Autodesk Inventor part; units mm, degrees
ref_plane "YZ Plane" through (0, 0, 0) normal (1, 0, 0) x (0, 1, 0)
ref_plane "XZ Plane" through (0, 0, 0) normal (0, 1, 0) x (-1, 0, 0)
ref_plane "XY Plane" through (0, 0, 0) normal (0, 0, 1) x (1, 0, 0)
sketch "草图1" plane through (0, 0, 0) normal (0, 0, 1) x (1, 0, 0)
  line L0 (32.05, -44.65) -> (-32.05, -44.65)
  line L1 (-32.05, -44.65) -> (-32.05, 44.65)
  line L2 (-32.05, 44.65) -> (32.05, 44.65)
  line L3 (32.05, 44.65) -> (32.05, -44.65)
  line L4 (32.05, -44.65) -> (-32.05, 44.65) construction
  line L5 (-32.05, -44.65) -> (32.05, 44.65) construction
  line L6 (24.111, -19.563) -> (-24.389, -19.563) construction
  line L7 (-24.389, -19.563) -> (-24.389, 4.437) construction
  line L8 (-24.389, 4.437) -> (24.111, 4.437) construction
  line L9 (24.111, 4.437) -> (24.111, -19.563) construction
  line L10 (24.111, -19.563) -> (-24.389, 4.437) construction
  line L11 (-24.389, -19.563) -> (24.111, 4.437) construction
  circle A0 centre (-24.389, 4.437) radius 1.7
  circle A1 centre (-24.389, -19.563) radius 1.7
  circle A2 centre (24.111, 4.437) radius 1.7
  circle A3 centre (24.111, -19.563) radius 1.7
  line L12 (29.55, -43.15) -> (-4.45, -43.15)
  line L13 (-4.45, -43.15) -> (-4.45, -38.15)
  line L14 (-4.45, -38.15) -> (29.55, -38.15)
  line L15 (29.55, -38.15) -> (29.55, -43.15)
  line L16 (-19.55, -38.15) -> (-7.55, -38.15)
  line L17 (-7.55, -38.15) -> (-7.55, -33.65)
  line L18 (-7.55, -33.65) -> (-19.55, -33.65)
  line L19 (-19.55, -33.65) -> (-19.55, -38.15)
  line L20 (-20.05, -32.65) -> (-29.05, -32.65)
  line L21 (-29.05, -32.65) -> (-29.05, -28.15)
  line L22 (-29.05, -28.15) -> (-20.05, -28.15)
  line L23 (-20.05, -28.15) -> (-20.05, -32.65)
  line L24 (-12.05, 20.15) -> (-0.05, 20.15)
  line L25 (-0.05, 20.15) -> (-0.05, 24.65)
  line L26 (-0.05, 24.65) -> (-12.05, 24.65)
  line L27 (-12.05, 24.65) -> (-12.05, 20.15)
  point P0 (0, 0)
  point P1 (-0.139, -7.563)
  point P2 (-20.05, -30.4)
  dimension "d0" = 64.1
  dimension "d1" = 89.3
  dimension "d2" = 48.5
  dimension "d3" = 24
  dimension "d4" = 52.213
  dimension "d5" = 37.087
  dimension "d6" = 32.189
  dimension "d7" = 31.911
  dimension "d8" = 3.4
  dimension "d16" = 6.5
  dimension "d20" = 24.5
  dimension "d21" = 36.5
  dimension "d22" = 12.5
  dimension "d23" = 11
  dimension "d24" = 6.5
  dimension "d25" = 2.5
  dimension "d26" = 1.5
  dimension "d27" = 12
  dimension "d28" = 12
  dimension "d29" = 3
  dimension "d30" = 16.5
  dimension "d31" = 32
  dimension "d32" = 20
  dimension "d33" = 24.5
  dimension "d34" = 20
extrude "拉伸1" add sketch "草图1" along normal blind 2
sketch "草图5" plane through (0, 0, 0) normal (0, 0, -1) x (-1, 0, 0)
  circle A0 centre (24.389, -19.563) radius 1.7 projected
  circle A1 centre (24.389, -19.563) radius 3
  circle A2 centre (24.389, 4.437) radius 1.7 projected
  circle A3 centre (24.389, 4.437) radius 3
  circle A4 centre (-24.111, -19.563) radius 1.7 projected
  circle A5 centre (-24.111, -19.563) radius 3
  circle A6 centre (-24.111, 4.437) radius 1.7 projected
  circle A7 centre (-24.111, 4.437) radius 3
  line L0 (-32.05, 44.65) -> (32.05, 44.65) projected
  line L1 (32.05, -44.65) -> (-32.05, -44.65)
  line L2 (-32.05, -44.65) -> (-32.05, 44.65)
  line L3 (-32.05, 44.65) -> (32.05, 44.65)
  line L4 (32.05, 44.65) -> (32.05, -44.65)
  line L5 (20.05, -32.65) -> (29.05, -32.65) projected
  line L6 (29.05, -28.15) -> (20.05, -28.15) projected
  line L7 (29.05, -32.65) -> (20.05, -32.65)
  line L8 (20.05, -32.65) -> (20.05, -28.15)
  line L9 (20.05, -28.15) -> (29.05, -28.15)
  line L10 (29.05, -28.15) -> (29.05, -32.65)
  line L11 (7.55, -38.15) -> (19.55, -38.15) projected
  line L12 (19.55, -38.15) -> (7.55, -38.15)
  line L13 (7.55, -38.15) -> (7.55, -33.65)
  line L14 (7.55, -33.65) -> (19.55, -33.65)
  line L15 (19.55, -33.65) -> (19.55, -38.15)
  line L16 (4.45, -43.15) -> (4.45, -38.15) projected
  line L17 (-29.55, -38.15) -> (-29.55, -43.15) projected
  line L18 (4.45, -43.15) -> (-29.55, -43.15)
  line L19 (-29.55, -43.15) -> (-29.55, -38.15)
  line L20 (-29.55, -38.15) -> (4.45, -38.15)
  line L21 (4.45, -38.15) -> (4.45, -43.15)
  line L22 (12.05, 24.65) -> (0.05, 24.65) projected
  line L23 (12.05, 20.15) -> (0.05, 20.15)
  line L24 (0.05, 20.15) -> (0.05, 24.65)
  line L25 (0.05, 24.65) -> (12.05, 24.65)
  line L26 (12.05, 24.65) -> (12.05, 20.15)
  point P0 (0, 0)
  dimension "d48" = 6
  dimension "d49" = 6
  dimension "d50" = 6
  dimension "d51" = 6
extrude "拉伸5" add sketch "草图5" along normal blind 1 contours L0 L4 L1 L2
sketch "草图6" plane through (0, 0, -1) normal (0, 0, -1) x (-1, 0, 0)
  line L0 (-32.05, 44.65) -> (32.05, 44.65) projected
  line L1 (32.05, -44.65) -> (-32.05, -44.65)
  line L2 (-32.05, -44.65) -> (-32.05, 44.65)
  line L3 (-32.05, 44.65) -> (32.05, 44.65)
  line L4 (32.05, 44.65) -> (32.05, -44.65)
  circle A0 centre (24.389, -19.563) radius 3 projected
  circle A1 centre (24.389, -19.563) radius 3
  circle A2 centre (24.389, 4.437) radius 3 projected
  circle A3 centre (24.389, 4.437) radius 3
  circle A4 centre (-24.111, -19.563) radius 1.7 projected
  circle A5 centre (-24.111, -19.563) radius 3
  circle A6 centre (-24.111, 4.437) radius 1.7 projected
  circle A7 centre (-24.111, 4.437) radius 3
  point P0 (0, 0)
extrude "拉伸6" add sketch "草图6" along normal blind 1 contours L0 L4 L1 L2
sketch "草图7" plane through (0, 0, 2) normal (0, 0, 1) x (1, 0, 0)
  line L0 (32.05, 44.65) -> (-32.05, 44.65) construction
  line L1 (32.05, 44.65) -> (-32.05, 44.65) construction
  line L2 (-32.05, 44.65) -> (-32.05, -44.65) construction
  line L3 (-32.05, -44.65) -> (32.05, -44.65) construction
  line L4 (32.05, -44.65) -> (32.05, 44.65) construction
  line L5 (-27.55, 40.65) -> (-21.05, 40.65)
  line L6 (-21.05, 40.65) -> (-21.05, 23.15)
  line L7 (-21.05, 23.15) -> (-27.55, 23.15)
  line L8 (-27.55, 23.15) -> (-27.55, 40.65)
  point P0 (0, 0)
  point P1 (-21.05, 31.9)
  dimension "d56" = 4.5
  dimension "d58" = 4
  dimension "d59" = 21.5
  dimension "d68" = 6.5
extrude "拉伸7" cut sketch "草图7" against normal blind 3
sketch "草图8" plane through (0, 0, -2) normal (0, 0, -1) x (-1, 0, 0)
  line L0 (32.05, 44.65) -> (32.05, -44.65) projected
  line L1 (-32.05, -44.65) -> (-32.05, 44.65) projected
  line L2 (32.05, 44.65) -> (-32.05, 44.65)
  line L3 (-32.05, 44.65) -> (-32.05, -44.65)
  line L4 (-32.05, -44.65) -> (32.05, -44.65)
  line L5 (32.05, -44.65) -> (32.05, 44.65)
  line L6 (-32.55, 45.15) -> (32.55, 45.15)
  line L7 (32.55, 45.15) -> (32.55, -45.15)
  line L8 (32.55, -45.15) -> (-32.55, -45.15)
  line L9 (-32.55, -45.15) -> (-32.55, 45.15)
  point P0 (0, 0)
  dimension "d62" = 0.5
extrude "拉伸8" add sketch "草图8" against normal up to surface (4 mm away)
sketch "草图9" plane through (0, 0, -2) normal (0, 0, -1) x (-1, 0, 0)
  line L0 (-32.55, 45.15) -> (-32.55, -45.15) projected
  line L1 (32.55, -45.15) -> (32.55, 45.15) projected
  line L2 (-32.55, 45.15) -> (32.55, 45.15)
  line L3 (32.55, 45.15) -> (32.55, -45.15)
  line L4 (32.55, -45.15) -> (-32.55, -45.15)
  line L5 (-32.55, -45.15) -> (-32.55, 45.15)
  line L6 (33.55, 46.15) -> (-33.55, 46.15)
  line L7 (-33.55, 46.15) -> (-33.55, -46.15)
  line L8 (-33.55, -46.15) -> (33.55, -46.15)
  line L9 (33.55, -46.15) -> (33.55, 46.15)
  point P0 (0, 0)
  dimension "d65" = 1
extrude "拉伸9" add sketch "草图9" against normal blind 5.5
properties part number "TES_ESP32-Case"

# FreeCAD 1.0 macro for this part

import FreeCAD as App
import Part
import Sketcher
from FreeCAD import Vector

doc = App.newDocument("Part")
params = doc.addObject("Spreadsheet::Sheet", "Params")
for row, (alias, value) in enumerate([
    ("sketch1_diameter", "3.4 mm"),
    ("sketch1_width", "12 mm"),
    ("sketch1_width2", "64.1 mm"),
    ("sketch1_height", "89.3 mm"),
    ("sketch1_width3", "34 mm"),
    ("pad1_length", "2 mm"),
    ("sketch2_diameter", "6 mm"),
    ("sketch2_width", "34 mm"),
    ("sketch2_width2", "12 mm"),
    ("sketch2_width3", "9 mm"),
    ("sketch2_height", "5 mm"),
    ("pad2_length", "1 mm"),
    ("sketch3_diameter", "6 mm"),
    ("sketch3_width", "64.1 mm"),
    ("sketch3_height", "89.3 mm"),
    ("pad3_length", "1 mm"),
    ("sketch4_width", "6.5 mm"),
    ("sketch4_height", "17.5 mm"),
    ("pocket1_length", "3 mm"),
    ("sketch5_width", "65.1 mm"),
    ("sketch5_height", "90.3 mm"),
    ("pad4_length", "4 mm"),
    ("sketch6_width", "67.1 mm"),
    ("sketch6_height", "92.3 mm"),
    ("pad5_length", "5.5 mm"),
], start=1):
    params.set(f"A{row}", alias)
    params.set(f"B{row}", "=" + value)
    params.setAlias(f"B{row}", alias)

body = doc.addObject("PartDesign::Body", "Body")

# Sketch on XY plane
sketch1 = body.newObject("Sketcher::SketchObject", "Sketch")
sketch1.AttachmentSupport = (doc.getObject("XY_Plane"), [""])
sketch1.MapMode = "FlatFace"
sketch1.addGeometry(Part.LineSegment(Vector(-32, -44.6, 0), Vector(32, -44.6, 0)), False)
sketch1.addGeometry(Part.LineSegment(Vector(32, -44.6, 0), Vector(32, 44.6, 0)), False)
sketch1.addGeometry(Part.LineSegment(Vector(32, 44.6, 0), Vector(-32, 44.6, 0)), False)
sketch1.addGeometry(Part.LineSegment(Vector(-32, 44.6, 0), Vector(-32, -44.6, 0)), False)
sketch1.addGeometry(Part.LineSegment(Vector(-20.1, -28.1, 0), Vector(-20.1, -32.6, 0)), False)
sketch1.addGeometry(Part.LineSegment(Vector(-20.1, -32.6, 0), Vector(-29.1, -32.6, 0)), False)
sketch1.addGeometry(Part.LineSegment(Vector(-29.1, -32.6, 0), Vector(-29.1, -28.1, 0)), False)
sketch1.addGeometry(Part.LineSegment(Vector(-29.1, -28.1, 0), Vector(-20.1, -28.1, 0)), False)
sketch1.addGeometry(Part.LineSegment(Vector(-7.5, -38.1, 0), Vector(-19.6, -38.1, 0)), False)
sketch1.addGeometry(Part.LineSegment(Vector(-19.6, -38.1, 0), Vector(-19.6, -33.6, 0)), False)
sketch1.addGeometry(Part.LineSegment(Vector(-19.6, -33.6, 0), Vector(-7.5, -33.6, 0)), False)
sketch1.addGeometry(Part.LineSegment(Vector(-7.5, -33.6, 0), Vector(-7.5, -38.1, 0)), False)
sketch1.addGeometry(Part.Circle(Vector(-24.4, -19.6, 0), Vector(0, 0, 1), 1.7), False)
sketch1.addGeometry(Part.LineSegment(Vector(29.6, -38.1, 0), Vector(29.6, -43.1, 0)), False)
sketch1.addGeometry(Part.LineSegment(Vector(29.6, -43.1, 0), Vector(-4.5, -43.1, 0)), False)
sketch1.addGeometry(Part.LineSegment(Vector(-4.5, -43.1, 0), Vector(-4.5, -38.1, 0)), False)
sketch1.addGeometry(Part.LineSegment(Vector(-4.5, -38.1, 0), Vector(29.6, -38.1, 0)), False)
sketch1.addGeometry(Part.Circle(Vector(24.1, -19.6, 0), Vector(0, 0, 1), 1.7), False)
sketch1.addGeometry(Part.Circle(Vector(-24.4, 4.4, 0), Vector(0, 0, 1), 1.7), False)
sketch1.addGeometry(Part.LineSegment(Vector(-0.1, 20.1, 0), Vector(-12.1, 20.1, 0)), False)
sketch1.addGeometry(Part.LineSegment(Vector(-12.1, 20.1, 0), Vector(-12.1, 24.6, 0)), False)
sketch1.addGeometry(Part.LineSegment(Vector(-12.1, 24.6, 0), Vector(-0.1, 24.6, 0)), False)
sketch1.addGeometry(Part.LineSegment(Vector(-0.1, 24.6, 0), Vector(-0.1, 20.1, 0)), False)
sketch1.addGeometry(Part.Circle(Vector(24.1, 4.4, 0), Vector(0, 0, 1), 1.7), False)
sketch1.addConstraint(Sketcher.Constraint("Coincident", 0, 2, 1, 1))
sketch1.addConstraint(Sketcher.Constraint("Coincident", 1, 2, 2, 1))
sketch1.addConstraint(Sketcher.Constraint("Coincident", 2, 2, 3, 1))
sketch1.addConstraint(Sketcher.Constraint("Coincident", 3, 2, 0, 1))
sketch1.addConstraint(Sketcher.Constraint("Coincident", 4, 2, 5, 1))
sketch1.addConstraint(Sketcher.Constraint("Coincident", 5, 2, 6, 1))
sketch1.addConstraint(Sketcher.Constraint("Coincident", 6, 2, 7, 1))
sketch1.addConstraint(Sketcher.Constraint("Coincident", 7, 2, 4, 1))
sketch1.addConstraint(Sketcher.Constraint("Coincident", 8, 2, 9, 1))
sketch1.addConstraint(Sketcher.Constraint("Coincident", 9, 2, 10, 1))
sketch1.addConstraint(Sketcher.Constraint("Coincident", 10, 2, 11, 1))
sketch1.addConstraint(Sketcher.Constraint("Coincident", 11, 2, 8, 1))
sketch1.addConstraint(Sketcher.Constraint("Coincident", 13, 2, 14, 1))
sketch1.addConstraint(Sketcher.Constraint("Coincident", 14, 2, 15, 1))
sketch1.addConstraint(Sketcher.Constraint("Coincident", 15, 2, 16, 1))
sketch1.addConstraint(Sketcher.Constraint("Coincident", 16, 2, 13, 1))
sketch1.addConstraint(Sketcher.Constraint("Coincident", 19, 2, 20, 1))
sketch1.addConstraint(Sketcher.Constraint("Coincident", 20, 2, 21, 1))
sketch1.addConstraint(Sketcher.Constraint("Coincident", 21, 2, 22, 1))
sketch1.addConstraint(Sketcher.Constraint("Coincident", 22, 2, 19, 1))
sketch1.addConstraint(Sketcher.Constraint("Horizontal", 0))
sketch1.addConstraint(Sketcher.Constraint("Vertical", 1))
sketch1.addConstraint(Sketcher.Constraint("Horizontal", 2))
sketch1.addConstraint(Sketcher.Constraint("Vertical", 3))
sketch1.addConstraint(Sketcher.Constraint("Vertical", 4))
sketch1.addConstraint(Sketcher.Constraint("Horizontal", 5))
sketch1.addConstraint(Sketcher.Constraint("Vertical", 6))
sketch1.addConstraint(Sketcher.Constraint("Horizontal", 7))
sketch1.addConstraint(Sketcher.Constraint("Horizontal", 8))
sketch1.addConstraint(Sketcher.Constraint("Vertical", 9))
sketch1.addConstraint(Sketcher.Constraint("Horizontal", 10))
sketch1.addConstraint(Sketcher.Constraint("Vertical", 11))
sketch1.addConstraint(Sketcher.Constraint("Vertical", 13))
sketch1.addConstraint(Sketcher.Constraint("Horizontal", 14))
sketch1.addConstraint(Sketcher.Constraint("Vertical", 15))
sketch1.addConstraint(Sketcher.Constraint("Horizontal", 16))
sketch1.addConstraint(Sketcher.Constraint("Horizontal", 19))
sketch1.addConstraint(Sketcher.Constraint("Vertical", 20))
sketch1.addConstraint(Sketcher.Constraint("Horizontal", 21))
sketch1.addConstraint(Sketcher.Constraint("Vertical", 22))
sketch1.addConstraint(Sketcher.Constraint("Equal", 12, 17))
sketch1.addConstraint(Sketcher.Constraint("Equal", 17, 18))
sketch1.addConstraint(Sketcher.Constraint("Equal", 18, 23))
sketch1.addConstraint(Sketcher.Constraint("Symmetric", 0, 2, 2, 2, -1, 1))
sketch1.addConstraint(Sketcher.Constraint("Horizontal", 12, 3, 17, 3))
sketch1.addConstraint(Sketcher.Constraint("Horizontal", 18, 3, 23, 3))
sketch1.addConstraint(Sketcher.Constraint("Horizontal", 11, 2, 15, 2))
sketch1.addConstraint(Sketcher.Constraint("Vertical", 12, 3, 18, 3))
sketch1.addConstraint(Sketcher.Constraint("Vertical", 17, 3, 23, 3))
sketch1.addConstraint(Sketcher.Constraint("Equal", 10, 19))
sketch1.addConstraint(Sketcher.Constraint("Equal", 6, 9))
sketch1.addConstraint(Sketcher.Constraint("Equal", 11, 20))
sketch1.addConstraint(Sketcher.Constraint("Diameter", 12, 3.4))
sketch1.addConstraint(Sketcher.Constraint("DistanceX", 8, 2, 8, 1, 12.0))
sketch1.addConstraint(Sketcher.Constraint("DistanceX", 0, 1, 0, 2, 64.1))
sketch1.addConstraint(Sketcher.Constraint("DistanceY", 1, 1, 1, 2, 89.3))
sketch1.addConstraint(Sketcher.Constraint("DistanceY", 12, 3, 18, 3, 24.0))
sketch1.addConstraint(Sketcher.Constraint("DistanceX", 3, 2, 4, 2, 12.0))
sketch1.addConstraint(Sketcher.Constraint("DistanceY", 3, 2, 4, 2, 12.0))
sketch1.addConstraint(Sketcher.Constraint("DistanceX", 3, 2, 5, 2, 3.0))
sketch1.addConstraint(Sketcher.Constraint("DistanceX", 2, 2, 19, 2, 20.0))
sketch1.addConstraint(Sketcher.Constraint("DistanceY", 20, 2, 2, 2, 20.0))
sketch1.addConstraint(Sketcher.Constraint("DistanceX", 12, 3, 17, 3, 48.5))
sketch1.addConstraint(Sketcher.Constraint("DistanceY", 3, 2, 6, 2, 16.5))
sketch1.addConstraint(Sketcher.Constraint("DistanceX", 3, 2, 8, 2, 12.5))
sketch1.addConstraint(Sketcher.Constraint("DistanceY", 3, 2, 8, 2, 6.5))
sketch1.addConstraint(Sketcher.Constraint("DistanceX", 13, 2, 0, 2, 2.5))
sketch1.addConstraint(Sketcher.Constraint("DistanceY", 0, 2, 13, 2, 1.5))
sketch1.addConstraint(Sketcher.Constraint("DistanceX", 14, 2, 14, 1, 34.0))
sketch1.addConstraint(Sketcher.Constraint("DistanceY", 4, 2, 18, 3, 37.087))
sketch1.addConstraint(Sketcher.Constraint("DistanceX", 12, 3, -1, 1, 24.389))
sketch1.setExpression("Constraints[52]", "Params.sketch1_diameter")
sketch1.setExpression("Constraints[53]", "Params.sketch1_width")
sketch1.setExpression("Constraints[54]", "Params.sketch1_width2")
sketch1.setExpression("Constraints[55]", "Params.sketch1_height")
sketch1.setExpression("Constraints[68]", "Params.sketch1_width3")
pad1 = body.newObject("PartDesign::Pad", "Pad")
pad1.Profile = sketch1
pad1.setExpression("Length", "Params.pad1_length")

# Sketch on XY plane
sketch2 = body.newObject("Sketcher::SketchObject", "Sketch001")
sketch2.AttachmentSupport = (doc.getObject("XY_Plane"), [""])
sketch2.MapMode = "FlatFace"
sketch2.addGeometry(Part.LineSegment(Vector(-32, 44.6, 0), Vector(32, 44.6, 0)), False)
sketch2.addGeometry(Part.LineSegment(Vector(32, 44.6, 0), Vector(32, -44.6, 0)), False)
sketch2.addGeometry(Part.LineSegment(Vector(32, -44.6, 0), Vector(-32, -44.6, 0)), False)
sketch2.addGeometry(Part.LineSegment(Vector(-32, -44.6, 0), Vector(-32, 44.6, 0)), False)
sketch2.addGeometry(Part.LineSegment(Vector(-4.5, -38.1, 0), Vector(-4.5, -43.1, 0)), False)
sketch2.addGeometry(Part.LineSegment(Vector(-4.5, -43.1, 0), Vector(29.6, -43.1, 0)), False)
sketch2.addGeometry(Part.LineSegment(Vector(29.6, -43.1, 0), Vector(29.6, -38.1, 0)), False)
sketch2.addGeometry(Part.LineSegment(Vector(29.6, -38.1, 0), Vector(-4.5, -38.1, 0)), False)
sketch2.addGeometry(Part.Circle(Vector(24.1, -19.6, 0), Vector(0, 0, 1), 3), False)
sketch2.addGeometry(Part.LineSegment(Vector(-19.6, -38.1, 0), Vector(-7.5, -38.1, 0)), False)
sketch2.addGeometry(Part.LineSegment(Vector(-7.5, -38.1, 0), Vector(-7.5, -33.6, 0)), False)
sketch2.addGeometry(Part.LineSegment(Vector(-7.5, -33.6, 0), Vector(-19.6, -33.6, 0)), False)
sketch2.addGeometry(Part.LineSegment(Vector(-19.6, -33.6, 0), Vector(-19.6, -38.1, 0)), False)
sketch2.addGeometry(Part.LineSegment(Vector(-29.1, -32.6, 0), Vector(-20.1, -32.6, 0)), False)
sketch2.addGeometry(Part.LineSegment(Vector(-20.1, -32.6, 0), Vector(-20.1, -28.1, 0)), False)
sketch2.addGeometry(Part.LineSegment(Vector(-20.1, -28.1, 0), Vector(-29.1, -28.1, 0)), False)
sketch2.addGeometry(Part.LineSegment(Vector(-29.1, -28.1, 0), Vector(-29.1, -32.6, 0)), False)
sketch2.addGeometry(Part.Circle(Vector(-24.4, -19.6, 0), Vector(0, 0, 1), 3), False)
sketch2.addGeometry(Part.Circle(Vector(24.1, 4.4, 0), Vector(0, 0, 1), 3), False)
sketch2.addGeometry(Part.Circle(Vector(-24.4, 4.4, 0), Vector(0, 0, 1), 3), False)
sketch2.addGeometry(Part.LineSegment(Vector(-0.1, 24.6, 0), Vector(-12.1, 24.6, 0)), False)
sketch2.addGeometry(Part.LineSegment(Vector(-12.1, 24.6, 0), Vector(-12.1, 20.1, 0)), False)
sketch2.addGeometry(Part.LineSegment(Vector(-12.1, 20.1, 0), Vector(-0.1, 20.1, 0)), False)
sketch2.addGeometry(Part.LineSegment(Vector(-0.1, 20.1, 0), Vector(-0.1, 24.6, 0)), False)
sketch2.addConstraint(Sketcher.Constraint("Coincident", 0, 2, 1, 1))
sketch2.addConstraint(Sketcher.Constraint("Coincident", 1, 2, 2, 1))
sketch2.addConstraint(Sketcher.Constraint("Coincident", 2, 2, 3, 1))
sketch2.addConstraint(Sketcher.Constraint("Coincident", 3, 2, 0, 1))
sketch2.addConstraint(Sketcher.Constraint("Coincident", 4, 2, 5, 1))
sketch2.addConstraint(Sketcher.Constraint("Coincident", 5, 2, 6, 1))
sketch2.addConstraint(Sketcher.Constraint("Coincident", 6, 2, 7, 1))
sketch2.addConstraint(Sketcher.Constraint("Coincident", 7, 2, 4, 1))
sketch2.addConstraint(Sketcher.Constraint("Coincident", 9, 2, 10, 1))
sketch2.addConstraint(Sketcher.Constraint("Coincident", 10, 2, 11, 1))
sketch2.addConstraint(Sketcher.Constraint("Coincident", 11, 2, 12, 1))
sketch2.addConstraint(Sketcher.Constraint("Coincident", 12, 2, 9, 1))
sketch2.addConstraint(Sketcher.Constraint("Coincident", 13, 2, 14, 1))
sketch2.addConstraint(Sketcher.Constraint("Coincident", 14, 2, 15, 1))
sketch2.addConstraint(Sketcher.Constraint("Coincident", 15, 2, 16, 1))
sketch2.addConstraint(Sketcher.Constraint("Coincident", 16, 2, 13, 1))
sketch2.addConstraint(Sketcher.Constraint("Coincident", 20, 2, 21, 1))
sketch2.addConstraint(Sketcher.Constraint("Coincident", 21, 2, 22, 1))
sketch2.addConstraint(Sketcher.Constraint("Coincident", 22, 2, 23, 1))
sketch2.addConstraint(Sketcher.Constraint("Coincident", 23, 2, 20, 1))
sketch2.addConstraint(Sketcher.Constraint("Horizontal", 0))
sketch2.addConstraint(Sketcher.Constraint("Vertical", 1))
sketch2.addConstraint(Sketcher.Constraint("Horizontal", 2))
sketch2.addConstraint(Sketcher.Constraint("Vertical", 3))
sketch2.addConstraint(Sketcher.Constraint("Vertical", 4))
sketch2.addConstraint(Sketcher.Constraint("Horizontal", 5))
sketch2.addConstraint(Sketcher.Constraint("Vertical", 6))
sketch2.addConstraint(Sketcher.Constraint("Horizontal", 7))
sketch2.addConstraint(Sketcher.Constraint("Horizontal", 9))
sketch2.addConstraint(Sketcher.Constraint("Vertical", 10))
sketch2.addConstraint(Sketcher.Constraint("Horizontal", 11))
sketch2.addConstraint(Sketcher.Constraint("Vertical", 12))
sketch2.addConstraint(Sketcher.Constraint("Horizontal", 13))
sketch2.addConstraint(Sketcher.Constraint("Vertical", 14))
sketch2.addConstraint(Sketcher.Constraint("Horizontal", 15))
sketch2.addConstraint(Sketcher.Constraint("Vertical", 16))
sketch2.addConstraint(Sketcher.Constraint("Horizontal", 20))
sketch2.addConstraint(Sketcher.Constraint("Vertical", 21))
sketch2.addConstraint(Sketcher.Constraint("Horizontal", 22))
sketch2.addConstraint(Sketcher.Constraint("Vertical", 23))
sketch2.addConstraint(Sketcher.Constraint("Equal", 8, 17))
sketch2.addConstraint(Sketcher.Constraint("Equal", 17, 18))
sketch2.addConstraint(Sketcher.Constraint("Equal", 18, 19))
sketch2.addConstraint(Sketcher.Constraint("Symmetric", 0, 2, 2, 2, -1, 1))
sketch2.addConstraint(Sketcher.Constraint("Horizontal", 8, 3, 17, 3))
sketch2.addConstraint(Sketcher.Constraint("Horizontal", 18, 3, 19, 3))
sketch2.addConstraint(Sketcher.Constraint("Horizontal", 7, 2, 9, 2))
sketch2.addConstraint(Sketcher.Constraint("Vertical", 8, 3, 18, 3))
sketch2.addConstraint(Sketcher.Constraint("Vertical", 17, 3, 19, 3))
sketch2.addConstraint(Sketcher.Constraint("Equal", 11, 20))
sketch2.addConstraint(Sketcher.Constraint("Equal", 12, 14))
sketch2.addConstraint(Sketcher.Constraint("Equal", 16, 21))
sketch2.addConstraint(Sketcher.Constraint("Diameter", 8, 6.0))
sketch2.addConstraint(Sketcher.Constraint("DistanceX", 5, 1, 5, 2, 34.0))
sketch2.addConstraint(Sketcher.Constraint("DistanceX", 9, 1, 9, 2, 12.0))
sketch2.addConstraint(Sketcher.Constraint("DistanceX", 13, 1, 13, 2, 9.0))
sketch2.addConstraint(Sketcher.Constraint("DistanceY", 4, 2, 4, 1, 5.0))
sketch2.addConstraint(Sketcher.Constraint("DistanceX", 0, 1, 0, 2, 64.1))
sketch2.addConstraint(Sketcher.Constraint("DistanceY", 1, 2, 1, 1, 89.3))
sketch2.addConstraint(Sketcher.Constraint("DistanceY", 10, 1, 10, 2, 4.5))
sketch2.addConstraint(Sketcher.Constraint("DistanceY", 8, 3, 18, 3, 24.0))
sketch2.addConstraint(Sketcher.Constraint("DistanceY", 2, 2, 10, 2, 11.0))
sketch2.addConstraint(Sketcher.Constraint("DistanceY", 11, 2, 13, 2, 1.0))
sketch2.addConstraint(Sketcher.Constraint("DistanceX", 3, 2, 20, 2, 20.0))
sketch2.addConstraint(Sketcher.Constraint("DistanceY", 20, 2, 3, 2, 20.0))
sketch2.addConstraint(Sketcher.Constraint("DistanceX", 17, 3, 8, 3, 48.5))
sketch2.addConstraint(Sketcher.Constraint("DistanceX", 2, 2, 4, 2, 27.6))
sketch2.addConstraint(Sketcher.Constraint("DistanceX", 9, 2, 7, 2, 3.1))
sketch2.addConstraint(Sketcher.Constraint("DistanceX", 13, 2, 11, 2, 0.5))
sketch2.addConstraint(Sketcher.Constraint("DistanceX", -1, 1, 8, 3, 24.111))
sketch2.addConstraint(Sketcher.Constraint("DistanceY", 8, 3, -1, 1, 19.563))
sketch2.setExpression("Constraints[52]", "Params.sketch2_diameter")
sketch2.setExpression("Constraints[53]", "Params.sketch2_width")
sketch2.setExpression("Constraints[54]", "Params.sketch2_width2")
sketch2.setExpression("Constraints[55]", "Params.sketch2_width3")
sketch2.setExpression("Constraints[56]", "Params.sketch2_height")
pad2 = body.newObject("PartDesign::Pad", "Pad001")
pad2.Profile = sketch2
pad2.setExpression("Length", "Params.pad2_length")
pad2.Reversed = True

# Sketch on XY plane
sketch3 = body.newObject("Sketcher::SketchObject", "Sketch002")
sketch3.AttachmentSupport = (doc.getObject("XY_Plane"), [""])
sketch3.MapMode = "FlatFace"
sketch3.AttachmentOffset = App.Placement(Vector(0, 0, -1), App.Rotation())
sketch3.addGeometry(Part.LineSegment(Vector(-32, 44.6, 0), Vector(32, 44.6, 0)), False)
sketch3.addGeometry(Part.LineSegment(Vector(32, 44.6, 0), Vector(32, -44.6, 0)), False)
sketch3.addGeometry(Part.LineSegment(Vector(32, -44.6, 0), Vector(-32, -44.6, 0)), False)
sketch3.addGeometry(Part.LineSegment(Vector(-32, -44.6, 0), Vector(-32, 44.6, 0)), False)
sketch3.addGeometry(Part.Circle(Vector(24.1, -19.6, 0), Vector(0, 0, 1), 3), False)
sketch3.addGeometry(Part.Circle(Vector(-24.4, -19.6, 0), Vector(0, 0, 1), 3), False)
sketch3.addGeometry(Part.Circle(Vector(24.1, 4.4, 0), Vector(0, 0, 1), 3), False)
sketch3.addGeometry(Part.Circle(Vector(-24.4, 4.4, 0), Vector(0, 0, 1), 3), False)
sketch3.addConstraint(Sketcher.Constraint("Coincident", 0, 2, 1, 1))
sketch3.addConstraint(Sketcher.Constraint("Coincident", 1, 2, 2, 1))
sketch3.addConstraint(Sketcher.Constraint("Coincident", 2, 2, 3, 1))
sketch3.addConstraint(Sketcher.Constraint("Coincident", 3, 2, 0, 1))
sketch3.addConstraint(Sketcher.Constraint("Horizontal", 0))
sketch3.addConstraint(Sketcher.Constraint("Vertical", 1))
sketch3.addConstraint(Sketcher.Constraint("Horizontal", 2))
sketch3.addConstraint(Sketcher.Constraint("Vertical", 3))
sketch3.addConstraint(Sketcher.Constraint("Equal", 4, 5))
sketch3.addConstraint(Sketcher.Constraint("Equal", 5, 6))
sketch3.addConstraint(Sketcher.Constraint("Equal", 6, 7))
sketch3.addConstraint(Sketcher.Constraint("Symmetric", 0, 2, 2, 2, -1, 1))
sketch3.addConstraint(Sketcher.Constraint("Horizontal", 4, 3, 5, 3))
sketch3.addConstraint(Sketcher.Constraint("Horizontal", 6, 3, 7, 3))
sketch3.addConstraint(Sketcher.Constraint("Vertical", 4, 3, 6, 3))
sketch3.addConstraint(Sketcher.Constraint("Vertical", 5, 3, 7, 3))
sketch3.addConstraint(Sketcher.Constraint("Diameter", 4, 6.0))
sketch3.addConstraint(Sketcher.Constraint("DistanceX", 0, 1, 0, 2, 64.1))
sketch3.addConstraint(Sketcher.Constraint("DistanceY", 1, 2, 1, 1, 89.3))
sketch3.addConstraint(Sketcher.Constraint("DistanceY", 4, 3, 6, 3, 24.0))
sketch3.addConstraint(Sketcher.Constraint("DistanceX", 5, 3, 4, 3, 48.5))
sketch3.addConstraint(Sketcher.Constraint("DistanceX", -1, 1, 4, 3, 24.111))
sketch3.addConstraint(Sketcher.Constraint("DistanceY", 4, 3, -1, 1, 19.563))
sketch3.setExpression("Constraints[16]", "Params.sketch3_diameter")
sketch3.setExpression("Constraints[17]", "Params.sketch3_width")
sketch3.setExpression("Constraints[18]", "Params.sketch3_height")
pad3 = body.newObject("PartDesign::Pad", "Pad002")
pad3.Profile = sketch3
pad3.setExpression("Length", "Params.pad3_length")
pad3.Reversed = True

# Sketch on XY plane
sketch4 = body.newObject("Sketcher::SketchObject", "Sketch003")
sketch4.AttachmentSupport = (doc.getObject("XY_Plane"), [""])
sketch4.MapMode = "FlatFace"
sketch4.AttachmentOffset = App.Placement(Vector(0, 0, 2), App.Rotation())
sketch4.addGeometry(Part.LineSegment(Vector(-21, 41, 0), Vector(-28, 41, 0)), False)
sketch4.addGeometry(Part.LineSegment(Vector(-28, 41, 0), Vector(-28, 23, 0)), False)
sketch4.addGeometry(Part.LineSegment(Vector(-28, 23, 0), Vector(-21, 23, 0)), False)
sketch4.addGeometry(Part.LineSegment(Vector(-21, 23, 0), Vector(-21, 41, 0)), False)
sketch4.addConstraint(Sketcher.Constraint("Coincident", 0, 2, 1, 1))
sketch4.addConstraint(Sketcher.Constraint("Coincident", 1, 2, 2, 1))
sketch4.addConstraint(Sketcher.Constraint("Coincident", 2, 2, 3, 1))
sketch4.addConstraint(Sketcher.Constraint("Coincident", 3, 2, 0, 1))
sketch4.addConstraint(Sketcher.Constraint("Horizontal", 0))
sketch4.addConstraint(Sketcher.Constraint("Vertical", 1))
sketch4.addConstraint(Sketcher.Constraint("Horizontal", 2))
sketch4.addConstraint(Sketcher.Constraint("Vertical", 3))
sketch4.addConstraint(Sketcher.Constraint("DistanceX", 0, 2, 0, 1, 6.5))
sketch4.addConstraint(Sketcher.Constraint("DistanceY", 1, 2, 1, 1, 17.5))
sketch4.addConstraint(Sketcher.Constraint("DistanceX", 0, 2, -1, 1, 27.55))
sketch4.addConstraint(Sketcher.Constraint("DistanceY", -1, 1, 0, 2, 40.65))
sketch4.setExpression("Constraints[8]", "Params.sketch4_width")
sketch4.setExpression("Constraints[9]", "Params.sketch4_height")
pocket1 = body.newObject("PartDesign::Pocket", "Pocket")
pocket1.Profile = sketch4
pocket1.setExpression("Length", "Params.pocket1_length")

# Sketch on XY plane
sketch5 = body.newObject("Sketcher::SketchObject", "Sketch004")
sketch5.AttachmentSupport = (doc.getObject("XY_Plane"), [""])
sketch5.MapMode = "FlatFace"
sketch5.AttachmentOffset = App.Placement(Vector(0, 0, -2), App.Rotation())
sketch5.addGeometry(Part.LineSegment(Vector(-33, 45, 0), Vector(33, 45, 0)), False)
sketch5.addGeometry(Part.LineSegment(Vector(33, 45, 0), Vector(33, -45, 0)), False)
sketch5.addGeometry(Part.LineSegment(Vector(33, -45, 0), Vector(-33, -45, 0)), False)
sketch5.addGeometry(Part.LineSegment(Vector(-33, -45, 0), Vector(-33, 45, 0)), False)
sketch5.addGeometry(Part.LineSegment(Vector(32, 45, 0), Vector(-32, 45, 0)), False)
sketch5.addGeometry(Part.LineSegment(Vector(-32, 45, 0), Vector(-32, -45, 0)), False)
sketch5.addGeometry(Part.LineSegment(Vector(-32, -45, 0), Vector(32, -45, 0)), False)
sketch5.addGeometry(Part.LineSegment(Vector(32, -45, 0), Vector(32, 45, 0)), False)
sketch5.addConstraint(Sketcher.Constraint("Coincident", 0, 2, 1, 1))
sketch5.addConstraint(Sketcher.Constraint("Coincident", 1, 2, 2, 1))
sketch5.addConstraint(Sketcher.Constraint("Coincident", 2, 2, 3, 1))
sketch5.addConstraint(Sketcher.Constraint("Coincident", 3, 2, 0, 1))
sketch5.addConstraint(Sketcher.Constraint("Coincident", 4, 2, 5, 1))
sketch5.addConstraint(Sketcher.Constraint("Coincident", 5, 2, 6, 1))
sketch5.addConstraint(Sketcher.Constraint("Coincident", 6, 2, 7, 1))
sketch5.addConstraint(Sketcher.Constraint("Coincident", 7, 2, 4, 1))
sketch5.addConstraint(Sketcher.Constraint("Horizontal", 0))
sketch5.addConstraint(Sketcher.Constraint("Vertical", 1))
sketch5.addConstraint(Sketcher.Constraint("Horizontal", 2))
sketch5.addConstraint(Sketcher.Constraint("Vertical", 3))
sketch5.addConstraint(Sketcher.Constraint("Horizontal", 4))
sketch5.addConstraint(Sketcher.Constraint("Vertical", 5))
sketch5.addConstraint(Sketcher.Constraint("Horizontal", 6))
sketch5.addConstraint(Sketcher.Constraint("Vertical", 7))
sketch5.addConstraint(Sketcher.Constraint("Symmetric", 0, 2, 2, 2, -1, 1))
sketch5.addConstraint(Sketcher.Constraint("Symmetric", 4, 2, 6, 2, -1, 1))
sketch5.addConstraint(Sketcher.Constraint("DistanceX", 3, 2, 4, 2, 0.5))
sketch5.addConstraint(Sketcher.Constraint("DistanceY", 4, 2, 3, 2, 0.5))
sketch5.addConstraint(Sketcher.Constraint("DistanceX", 0, 1, 0, 2, 65.1))
sketch5.addConstraint(Sketcher.Constraint("DistanceY", 1, 2, 1, 1, 90.3))
sketch5.setExpression("Constraints[20]", "Params.sketch5_width")
sketch5.setExpression("Constraints[21]", "Params.sketch5_height")
pad4 = body.newObject("PartDesign::Pad", "Pad003")
pad4.Profile = sketch5
pad4.setExpression("Length", "Params.pad4_length")

# Sketch on XY plane
sketch6 = body.newObject("Sketcher::SketchObject", "Sketch005")
sketch6.AttachmentSupport = (doc.getObject("XY_Plane"), [""])
sketch6.MapMode = "FlatFace"
sketch6.AttachmentOffset = App.Placement(Vector(0, 0, -2), App.Rotation())
sketch6.addGeometry(Part.LineSegment(Vector(-34, -46, 0), Vector(-34, 46, 0)), False)
sketch6.addGeometry(Part.LineSegment(Vector(-34, 46, 0), Vector(34, 46, 0)), False)
sketch6.addGeometry(Part.LineSegment(Vector(34, 46, 0), Vector(34, -46, 0)), False)
sketch6.addGeometry(Part.LineSegment(Vector(34, -46, 0), Vector(-34, -46, 0)), False)
sketch6.addGeometry(Part.LineSegment(Vector(33, -45, 0), Vector(33, 45, 0)), False)
sketch6.addGeometry(Part.LineSegment(Vector(33, 45, 0), Vector(-33, 45, 0)), False)
sketch6.addGeometry(Part.LineSegment(Vector(-33, 45, 0), Vector(-33, -45, 0)), False)
sketch6.addGeometry(Part.LineSegment(Vector(-33, -45, 0), Vector(33, -45, 0)), False)
sketch6.addConstraint(Sketcher.Constraint("Coincident", 0, 2, 1, 1))
sketch6.addConstraint(Sketcher.Constraint("Coincident", 1, 2, 2, 1))
sketch6.addConstraint(Sketcher.Constraint("Coincident", 2, 2, 3, 1))
sketch6.addConstraint(Sketcher.Constraint("Coincident", 3, 2, 0, 1))
sketch6.addConstraint(Sketcher.Constraint("Coincident", 4, 2, 5, 1))
sketch6.addConstraint(Sketcher.Constraint("Coincident", 5, 2, 6, 1))
sketch6.addConstraint(Sketcher.Constraint("Coincident", 6, 2, 7, 1))
sketch6.addConstraint(Sketcher.Constraint("Coincident", 7, 2, 4, 1))
sketch6.addConstraint(Sketcher.Constraint("Vertical", 0))
sketch6.addConstraint(Sketcher.Constraint("Horizontal", 1))
sketch6.addConstraint(Sketcher.Constraint("Vertical", 2))
sketch6.addConstraint(Sketcher.Constraint("Horizontal", 3))
sketch6.addConstraint(Sketcher.Constraint("Vertical", 4))
sketch6.addConstraint(Sketcher.Constraint("Horizontal", 5))
sketch6.addConstraint(Sketcher.Constraint("Vertical", 6))
sketch6.addConstraint(Sketcher.Constraint("Horizontal", 7))
sketch6.addConstraint(Sketcher.Constraint("Symmetric", 0, 2, 2, 2, -1, 1))
sketch6.addConstraint(Sketcher.Constraint("Symmetric", 4, 2, 6, 2, -1, 1))
sketch6.addConstraint(Sketcher.Constraint("DistanceX", 4, 2, 1, 2, 1.0))
sketch6.addConstraint(Sketcher.Constraint("DistanceY", 4, 2, 1, 2, 1.0))
sketch6.addConstraint(Sketcher.Constraint("DistanceX", 1, 1, 1, 2, 67.1))
sketch6.addConstraint(Sketcher.Constraint("DistanceY", 0, 1, 0, 2, 92.3))
sketch6.setExpression("Constraints[20]", "Params.sketch6_width")
sketch6.setExpression("Constraints[21]", "Params.sketch6_height")
pad5 = body.newObject("PartDesign::Pad", "Pad004")
pad5.Profile = sketch6
pad5.setExpression("Length", "Params.pad5_length")

doc.recompute()
